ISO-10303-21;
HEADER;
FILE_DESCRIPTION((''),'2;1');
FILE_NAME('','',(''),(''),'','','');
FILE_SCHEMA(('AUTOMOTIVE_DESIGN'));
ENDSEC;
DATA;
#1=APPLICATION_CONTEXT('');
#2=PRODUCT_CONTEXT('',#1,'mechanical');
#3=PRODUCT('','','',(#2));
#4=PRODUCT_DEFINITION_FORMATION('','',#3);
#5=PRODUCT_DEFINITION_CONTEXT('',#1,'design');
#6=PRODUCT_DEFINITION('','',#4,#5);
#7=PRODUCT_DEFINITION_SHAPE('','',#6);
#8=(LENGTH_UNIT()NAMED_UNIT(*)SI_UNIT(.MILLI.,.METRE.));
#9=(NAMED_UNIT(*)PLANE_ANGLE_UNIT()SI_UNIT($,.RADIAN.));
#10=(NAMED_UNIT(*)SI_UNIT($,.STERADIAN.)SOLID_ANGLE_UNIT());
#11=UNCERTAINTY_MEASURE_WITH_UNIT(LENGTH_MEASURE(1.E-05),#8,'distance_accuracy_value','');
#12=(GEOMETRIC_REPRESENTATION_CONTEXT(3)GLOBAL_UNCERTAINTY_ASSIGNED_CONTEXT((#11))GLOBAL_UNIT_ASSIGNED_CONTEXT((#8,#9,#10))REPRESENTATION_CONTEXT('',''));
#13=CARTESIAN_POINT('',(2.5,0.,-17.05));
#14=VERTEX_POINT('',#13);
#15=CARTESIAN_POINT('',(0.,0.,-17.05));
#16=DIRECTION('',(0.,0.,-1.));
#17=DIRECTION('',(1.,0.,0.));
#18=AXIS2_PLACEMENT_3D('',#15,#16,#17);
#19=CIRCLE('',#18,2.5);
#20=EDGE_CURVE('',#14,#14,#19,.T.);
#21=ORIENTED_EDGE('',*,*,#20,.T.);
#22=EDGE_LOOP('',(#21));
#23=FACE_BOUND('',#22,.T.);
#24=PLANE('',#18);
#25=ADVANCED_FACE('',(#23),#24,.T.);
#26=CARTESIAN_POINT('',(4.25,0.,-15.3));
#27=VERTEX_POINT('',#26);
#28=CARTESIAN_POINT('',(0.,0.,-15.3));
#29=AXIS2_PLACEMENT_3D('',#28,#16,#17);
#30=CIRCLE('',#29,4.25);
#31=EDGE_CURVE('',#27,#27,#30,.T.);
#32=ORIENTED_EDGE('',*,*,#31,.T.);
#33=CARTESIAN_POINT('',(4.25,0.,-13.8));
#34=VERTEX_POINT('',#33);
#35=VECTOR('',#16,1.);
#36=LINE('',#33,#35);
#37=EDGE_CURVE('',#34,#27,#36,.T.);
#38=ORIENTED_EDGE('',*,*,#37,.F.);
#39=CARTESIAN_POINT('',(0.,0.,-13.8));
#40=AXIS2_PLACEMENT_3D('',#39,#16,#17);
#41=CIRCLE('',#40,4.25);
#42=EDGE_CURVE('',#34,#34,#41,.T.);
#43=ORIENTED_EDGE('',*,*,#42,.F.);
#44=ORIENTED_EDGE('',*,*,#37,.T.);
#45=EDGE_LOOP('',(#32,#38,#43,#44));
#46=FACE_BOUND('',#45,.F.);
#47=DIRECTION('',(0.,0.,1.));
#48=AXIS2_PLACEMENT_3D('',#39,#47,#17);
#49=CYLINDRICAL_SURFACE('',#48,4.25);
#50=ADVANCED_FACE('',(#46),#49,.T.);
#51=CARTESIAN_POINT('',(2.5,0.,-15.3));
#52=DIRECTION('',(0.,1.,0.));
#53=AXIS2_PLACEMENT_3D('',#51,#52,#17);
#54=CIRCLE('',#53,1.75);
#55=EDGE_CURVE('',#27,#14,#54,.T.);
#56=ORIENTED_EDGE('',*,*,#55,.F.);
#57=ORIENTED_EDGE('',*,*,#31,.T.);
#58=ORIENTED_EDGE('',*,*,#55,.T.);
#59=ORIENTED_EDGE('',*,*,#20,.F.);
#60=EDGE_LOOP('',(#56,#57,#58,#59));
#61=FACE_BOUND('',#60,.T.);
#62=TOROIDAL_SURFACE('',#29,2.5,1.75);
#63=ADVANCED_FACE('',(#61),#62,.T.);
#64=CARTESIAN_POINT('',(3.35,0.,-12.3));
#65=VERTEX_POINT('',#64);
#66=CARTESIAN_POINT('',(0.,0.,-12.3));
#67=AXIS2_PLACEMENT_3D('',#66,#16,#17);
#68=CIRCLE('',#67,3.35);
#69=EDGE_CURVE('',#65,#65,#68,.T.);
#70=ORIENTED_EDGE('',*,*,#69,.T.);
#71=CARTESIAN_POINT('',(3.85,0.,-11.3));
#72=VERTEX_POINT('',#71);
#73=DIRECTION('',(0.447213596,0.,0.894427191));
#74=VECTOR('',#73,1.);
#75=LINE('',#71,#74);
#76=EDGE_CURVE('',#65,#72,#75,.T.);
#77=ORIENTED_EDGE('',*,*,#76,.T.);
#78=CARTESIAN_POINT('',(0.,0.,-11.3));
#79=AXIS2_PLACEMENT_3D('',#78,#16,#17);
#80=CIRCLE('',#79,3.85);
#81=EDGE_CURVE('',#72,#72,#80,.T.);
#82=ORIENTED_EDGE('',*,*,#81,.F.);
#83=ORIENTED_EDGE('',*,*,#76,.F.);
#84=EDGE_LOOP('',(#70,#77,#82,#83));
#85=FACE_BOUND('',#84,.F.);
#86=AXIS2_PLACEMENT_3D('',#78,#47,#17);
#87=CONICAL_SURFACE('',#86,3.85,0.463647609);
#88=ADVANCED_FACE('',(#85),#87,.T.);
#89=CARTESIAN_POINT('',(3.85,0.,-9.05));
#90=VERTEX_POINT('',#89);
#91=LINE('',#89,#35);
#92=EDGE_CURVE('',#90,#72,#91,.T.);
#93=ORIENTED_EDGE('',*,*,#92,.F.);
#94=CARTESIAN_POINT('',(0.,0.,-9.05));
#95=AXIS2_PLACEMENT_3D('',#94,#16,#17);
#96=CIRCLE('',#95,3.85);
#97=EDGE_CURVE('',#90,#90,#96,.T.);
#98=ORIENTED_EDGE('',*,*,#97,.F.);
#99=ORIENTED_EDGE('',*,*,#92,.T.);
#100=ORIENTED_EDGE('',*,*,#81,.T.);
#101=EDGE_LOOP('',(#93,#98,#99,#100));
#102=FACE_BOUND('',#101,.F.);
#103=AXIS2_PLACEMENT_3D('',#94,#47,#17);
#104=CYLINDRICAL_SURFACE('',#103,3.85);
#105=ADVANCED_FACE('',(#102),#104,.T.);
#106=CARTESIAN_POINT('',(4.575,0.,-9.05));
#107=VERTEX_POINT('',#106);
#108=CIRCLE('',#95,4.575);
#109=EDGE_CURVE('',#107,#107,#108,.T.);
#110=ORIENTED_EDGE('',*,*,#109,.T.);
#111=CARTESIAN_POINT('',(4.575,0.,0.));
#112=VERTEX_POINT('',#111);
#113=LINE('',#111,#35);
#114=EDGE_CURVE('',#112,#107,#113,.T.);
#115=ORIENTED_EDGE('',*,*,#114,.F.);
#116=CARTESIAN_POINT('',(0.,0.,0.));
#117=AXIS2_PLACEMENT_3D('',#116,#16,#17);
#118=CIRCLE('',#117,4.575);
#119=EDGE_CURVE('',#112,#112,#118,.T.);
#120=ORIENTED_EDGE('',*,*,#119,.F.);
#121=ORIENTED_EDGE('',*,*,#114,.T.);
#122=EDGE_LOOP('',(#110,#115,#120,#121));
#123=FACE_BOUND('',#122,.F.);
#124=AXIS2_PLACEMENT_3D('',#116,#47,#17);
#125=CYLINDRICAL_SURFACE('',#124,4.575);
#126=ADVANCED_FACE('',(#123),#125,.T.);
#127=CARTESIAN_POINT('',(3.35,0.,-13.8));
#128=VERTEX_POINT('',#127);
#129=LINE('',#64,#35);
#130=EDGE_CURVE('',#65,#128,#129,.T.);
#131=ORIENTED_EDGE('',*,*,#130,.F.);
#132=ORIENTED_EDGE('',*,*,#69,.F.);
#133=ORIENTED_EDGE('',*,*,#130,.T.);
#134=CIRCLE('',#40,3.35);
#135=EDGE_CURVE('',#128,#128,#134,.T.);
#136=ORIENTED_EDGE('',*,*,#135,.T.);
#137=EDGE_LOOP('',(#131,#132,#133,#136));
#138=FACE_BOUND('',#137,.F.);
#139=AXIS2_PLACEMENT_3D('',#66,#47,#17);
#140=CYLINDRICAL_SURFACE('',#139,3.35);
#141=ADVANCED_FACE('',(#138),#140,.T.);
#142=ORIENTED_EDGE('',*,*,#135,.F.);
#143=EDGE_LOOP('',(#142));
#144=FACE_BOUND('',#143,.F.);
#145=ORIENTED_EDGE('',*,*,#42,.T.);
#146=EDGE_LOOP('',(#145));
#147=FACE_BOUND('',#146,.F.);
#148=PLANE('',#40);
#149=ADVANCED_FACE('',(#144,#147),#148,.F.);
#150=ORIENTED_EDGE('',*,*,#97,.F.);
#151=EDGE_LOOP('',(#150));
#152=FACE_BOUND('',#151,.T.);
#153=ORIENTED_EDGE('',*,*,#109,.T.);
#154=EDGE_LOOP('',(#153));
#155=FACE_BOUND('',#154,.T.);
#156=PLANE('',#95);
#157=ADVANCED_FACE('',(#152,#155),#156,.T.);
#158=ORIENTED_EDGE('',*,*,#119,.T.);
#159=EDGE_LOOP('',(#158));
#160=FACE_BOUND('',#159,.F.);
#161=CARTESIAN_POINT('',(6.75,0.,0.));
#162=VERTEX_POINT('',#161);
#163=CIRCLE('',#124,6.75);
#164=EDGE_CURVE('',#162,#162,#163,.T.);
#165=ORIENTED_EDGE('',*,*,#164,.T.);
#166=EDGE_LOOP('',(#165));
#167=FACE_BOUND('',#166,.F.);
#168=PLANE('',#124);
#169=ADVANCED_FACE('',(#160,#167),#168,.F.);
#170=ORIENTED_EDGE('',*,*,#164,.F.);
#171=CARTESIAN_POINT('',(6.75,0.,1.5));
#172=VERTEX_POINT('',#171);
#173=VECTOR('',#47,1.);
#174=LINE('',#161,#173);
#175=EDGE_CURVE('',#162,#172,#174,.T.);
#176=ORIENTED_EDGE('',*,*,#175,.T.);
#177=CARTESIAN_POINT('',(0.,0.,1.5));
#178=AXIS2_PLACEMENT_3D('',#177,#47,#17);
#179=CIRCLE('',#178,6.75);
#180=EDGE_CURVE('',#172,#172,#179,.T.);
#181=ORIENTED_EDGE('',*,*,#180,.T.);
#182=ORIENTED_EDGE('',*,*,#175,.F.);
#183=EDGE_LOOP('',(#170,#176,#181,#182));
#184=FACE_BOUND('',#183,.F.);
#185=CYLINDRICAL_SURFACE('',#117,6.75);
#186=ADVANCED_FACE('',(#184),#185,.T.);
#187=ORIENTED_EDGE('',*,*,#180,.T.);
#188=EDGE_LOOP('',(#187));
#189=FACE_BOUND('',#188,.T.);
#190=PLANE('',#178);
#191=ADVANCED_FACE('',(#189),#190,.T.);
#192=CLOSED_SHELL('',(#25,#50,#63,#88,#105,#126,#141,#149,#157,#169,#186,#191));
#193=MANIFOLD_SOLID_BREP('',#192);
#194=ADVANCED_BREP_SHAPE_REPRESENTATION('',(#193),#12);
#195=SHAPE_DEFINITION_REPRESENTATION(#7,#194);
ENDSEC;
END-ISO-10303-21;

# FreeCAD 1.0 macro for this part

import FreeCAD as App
import Part
import Sketcher

V = App.Vector


def edges_at(feature, points):
    """Names of the edges that pass closest to the given points."""
    edges = feature.Shape.Edges
    near = lambda p: min(range(len(edges)), key=lambda i: edges[i].distToShape(Part.Vertex(*p))[0])
    return sorted({f"Edge{near(p) + 1}" for p in points})

doc = App.newDocument("Part")
body = doc.addObject("PartDesign::Body", "Body")

sketch1 = body.newObject("Sketcher::SketchObject", "Sketch")
sketch1.AttachmentSupport = (doc.getObject("XY_Plane"), [""])
sketch1.MapMode = "FlatFace"
sketch1.addGeometry(Part.Circle(V(0, 0, 0), V(0, 0, 1), 7), False)
sketch1.addConstraint([
    Sketcher.Constraint("Coincident", 0, 3, -1, 1),
    Sketcher.Constraint("Diameter", 0, 13.5),
])
pad1 = body.newObject("PartDesign::Pad", "Pad")
pad1.Profile = sketch1
pad1.Length = 1.5

sketch2 = body.newObject("Sketcher::SketchObject", "Sketch001")
sketch2.AttachmentSupport = (doc.getObject("XY_Plane"), [""])
sketch2.MapMode = "FlatFace"
sketch2.addGeometry(Part.Circle(V(0, 0, 0), V(0, 0, 1), 4.6), False)
sketch2.addConstraint([
    Sketcher.Constraint("Coincident", 0, 3, -1, 1),
    Sketcher.Constraint("Diameter", 0, 9.15),
])
pad2 = body.newObject("PartDesign::Pad", "Pad001")
pad2.Profile = sketch2
pad2.Length = 9.05
pad2.Reversed = True

sketch3 = body.newObject("Sketcher::SketchObject", "Sketch002")
sketch3.AttachmentSupport = (doc.getObject("XY_Plane"), [""])
sketch3.MapMode = "FlatFace"
sketch3.AttachmentOffset = App.Placement(V(0, 0, -9.05), App.Rotation())
sketch3.addGeometry(Part.Circle(V(0, 0, 0), V(0, 0, 1), 3.9), False)
sketch3.addConstraint([
    Sketcher.Constraint("Coincident", 0, 3, -1, 1),
    Sketcher.Constraint("Diameter", 0, 7.7),
])
pad3 = body.newObject("PartDesign::Pad", "Pad002")
pad3.Profile = sketch3
pad3.Length = 3.25
pad3.Reversed = True
doc.recompute()

chamfer = body.newObject("PartDesign::Chamfer", "Chamfer")
chamfer.Base = (pad3, edges_at(pad3, [(-3.85, 0, -12.3)]))
chamfer.ChamferType = "Two distances"
chamfer.Size = 0.5
chamfer.Size2 = 1
chamfer.FlipDirection = True

sketch4 = body.newObject("Sketcher::SketchObject", "Sketch003")
sketch4.AttachmentSupport = (doc.getObject("XY_Plane"), [""])
sketch4.MapMode = "FlatFace"
sketch4.AttachmentOffset = App.Placement(V(0, 0, -12.3), App.Rotation())
sketch4.addGeometry(Part.Circle(V(0, 0, 0), V(0, 0, 1), 3.4), False)
sketch4.addConstraint([
    Sketcher.Constraint("Coincident", 0, 3, -1, 1),
    Sketcher.Constraint("Diameter", 0, 6.7),
])
pad4 = body.newObject("PartDesign::Pad", "Pad003")
pad4.Profile = sketch4
pad4.Length = 1.5
pad4.Reversed = True

sketch5 = body.newObject("Sketcher::SketchObject", "Sketch004")
sketch5.AttachmentSupport = (doc.getObject("XY_Plane"), [""])
sketch5.MapMode = "FlatFace"
sketch5.AttachmentOffset = App.Placement(V(0, 0, -13.8), App.Rotation())
sketch5.addGeometry(Part.Circle(V(0, 0, 0), V(0, 0, 1), 4.2), False)
sketch5.addConstraint([
    Sketcher.Constraint("Coincident", 0, 3, -1, 1),
    Sketcher.Constraint("Diameter", 0, 8.5),
])
pad5 = body.newObject("PartDesign::Pad", "Pad004")
pad5.Profile = sketch5
pad5.Length = 3.25
pad5.Reversed = True
doc.recompute()

fillet = body.newObject("PartDesign::Fillet", "Fillet")
fillet.Base = (pad5, edges_at(pad5, [(-4.25, 0, -17.05)]))
fillet.Radius = 1.75

doc.recompute()
